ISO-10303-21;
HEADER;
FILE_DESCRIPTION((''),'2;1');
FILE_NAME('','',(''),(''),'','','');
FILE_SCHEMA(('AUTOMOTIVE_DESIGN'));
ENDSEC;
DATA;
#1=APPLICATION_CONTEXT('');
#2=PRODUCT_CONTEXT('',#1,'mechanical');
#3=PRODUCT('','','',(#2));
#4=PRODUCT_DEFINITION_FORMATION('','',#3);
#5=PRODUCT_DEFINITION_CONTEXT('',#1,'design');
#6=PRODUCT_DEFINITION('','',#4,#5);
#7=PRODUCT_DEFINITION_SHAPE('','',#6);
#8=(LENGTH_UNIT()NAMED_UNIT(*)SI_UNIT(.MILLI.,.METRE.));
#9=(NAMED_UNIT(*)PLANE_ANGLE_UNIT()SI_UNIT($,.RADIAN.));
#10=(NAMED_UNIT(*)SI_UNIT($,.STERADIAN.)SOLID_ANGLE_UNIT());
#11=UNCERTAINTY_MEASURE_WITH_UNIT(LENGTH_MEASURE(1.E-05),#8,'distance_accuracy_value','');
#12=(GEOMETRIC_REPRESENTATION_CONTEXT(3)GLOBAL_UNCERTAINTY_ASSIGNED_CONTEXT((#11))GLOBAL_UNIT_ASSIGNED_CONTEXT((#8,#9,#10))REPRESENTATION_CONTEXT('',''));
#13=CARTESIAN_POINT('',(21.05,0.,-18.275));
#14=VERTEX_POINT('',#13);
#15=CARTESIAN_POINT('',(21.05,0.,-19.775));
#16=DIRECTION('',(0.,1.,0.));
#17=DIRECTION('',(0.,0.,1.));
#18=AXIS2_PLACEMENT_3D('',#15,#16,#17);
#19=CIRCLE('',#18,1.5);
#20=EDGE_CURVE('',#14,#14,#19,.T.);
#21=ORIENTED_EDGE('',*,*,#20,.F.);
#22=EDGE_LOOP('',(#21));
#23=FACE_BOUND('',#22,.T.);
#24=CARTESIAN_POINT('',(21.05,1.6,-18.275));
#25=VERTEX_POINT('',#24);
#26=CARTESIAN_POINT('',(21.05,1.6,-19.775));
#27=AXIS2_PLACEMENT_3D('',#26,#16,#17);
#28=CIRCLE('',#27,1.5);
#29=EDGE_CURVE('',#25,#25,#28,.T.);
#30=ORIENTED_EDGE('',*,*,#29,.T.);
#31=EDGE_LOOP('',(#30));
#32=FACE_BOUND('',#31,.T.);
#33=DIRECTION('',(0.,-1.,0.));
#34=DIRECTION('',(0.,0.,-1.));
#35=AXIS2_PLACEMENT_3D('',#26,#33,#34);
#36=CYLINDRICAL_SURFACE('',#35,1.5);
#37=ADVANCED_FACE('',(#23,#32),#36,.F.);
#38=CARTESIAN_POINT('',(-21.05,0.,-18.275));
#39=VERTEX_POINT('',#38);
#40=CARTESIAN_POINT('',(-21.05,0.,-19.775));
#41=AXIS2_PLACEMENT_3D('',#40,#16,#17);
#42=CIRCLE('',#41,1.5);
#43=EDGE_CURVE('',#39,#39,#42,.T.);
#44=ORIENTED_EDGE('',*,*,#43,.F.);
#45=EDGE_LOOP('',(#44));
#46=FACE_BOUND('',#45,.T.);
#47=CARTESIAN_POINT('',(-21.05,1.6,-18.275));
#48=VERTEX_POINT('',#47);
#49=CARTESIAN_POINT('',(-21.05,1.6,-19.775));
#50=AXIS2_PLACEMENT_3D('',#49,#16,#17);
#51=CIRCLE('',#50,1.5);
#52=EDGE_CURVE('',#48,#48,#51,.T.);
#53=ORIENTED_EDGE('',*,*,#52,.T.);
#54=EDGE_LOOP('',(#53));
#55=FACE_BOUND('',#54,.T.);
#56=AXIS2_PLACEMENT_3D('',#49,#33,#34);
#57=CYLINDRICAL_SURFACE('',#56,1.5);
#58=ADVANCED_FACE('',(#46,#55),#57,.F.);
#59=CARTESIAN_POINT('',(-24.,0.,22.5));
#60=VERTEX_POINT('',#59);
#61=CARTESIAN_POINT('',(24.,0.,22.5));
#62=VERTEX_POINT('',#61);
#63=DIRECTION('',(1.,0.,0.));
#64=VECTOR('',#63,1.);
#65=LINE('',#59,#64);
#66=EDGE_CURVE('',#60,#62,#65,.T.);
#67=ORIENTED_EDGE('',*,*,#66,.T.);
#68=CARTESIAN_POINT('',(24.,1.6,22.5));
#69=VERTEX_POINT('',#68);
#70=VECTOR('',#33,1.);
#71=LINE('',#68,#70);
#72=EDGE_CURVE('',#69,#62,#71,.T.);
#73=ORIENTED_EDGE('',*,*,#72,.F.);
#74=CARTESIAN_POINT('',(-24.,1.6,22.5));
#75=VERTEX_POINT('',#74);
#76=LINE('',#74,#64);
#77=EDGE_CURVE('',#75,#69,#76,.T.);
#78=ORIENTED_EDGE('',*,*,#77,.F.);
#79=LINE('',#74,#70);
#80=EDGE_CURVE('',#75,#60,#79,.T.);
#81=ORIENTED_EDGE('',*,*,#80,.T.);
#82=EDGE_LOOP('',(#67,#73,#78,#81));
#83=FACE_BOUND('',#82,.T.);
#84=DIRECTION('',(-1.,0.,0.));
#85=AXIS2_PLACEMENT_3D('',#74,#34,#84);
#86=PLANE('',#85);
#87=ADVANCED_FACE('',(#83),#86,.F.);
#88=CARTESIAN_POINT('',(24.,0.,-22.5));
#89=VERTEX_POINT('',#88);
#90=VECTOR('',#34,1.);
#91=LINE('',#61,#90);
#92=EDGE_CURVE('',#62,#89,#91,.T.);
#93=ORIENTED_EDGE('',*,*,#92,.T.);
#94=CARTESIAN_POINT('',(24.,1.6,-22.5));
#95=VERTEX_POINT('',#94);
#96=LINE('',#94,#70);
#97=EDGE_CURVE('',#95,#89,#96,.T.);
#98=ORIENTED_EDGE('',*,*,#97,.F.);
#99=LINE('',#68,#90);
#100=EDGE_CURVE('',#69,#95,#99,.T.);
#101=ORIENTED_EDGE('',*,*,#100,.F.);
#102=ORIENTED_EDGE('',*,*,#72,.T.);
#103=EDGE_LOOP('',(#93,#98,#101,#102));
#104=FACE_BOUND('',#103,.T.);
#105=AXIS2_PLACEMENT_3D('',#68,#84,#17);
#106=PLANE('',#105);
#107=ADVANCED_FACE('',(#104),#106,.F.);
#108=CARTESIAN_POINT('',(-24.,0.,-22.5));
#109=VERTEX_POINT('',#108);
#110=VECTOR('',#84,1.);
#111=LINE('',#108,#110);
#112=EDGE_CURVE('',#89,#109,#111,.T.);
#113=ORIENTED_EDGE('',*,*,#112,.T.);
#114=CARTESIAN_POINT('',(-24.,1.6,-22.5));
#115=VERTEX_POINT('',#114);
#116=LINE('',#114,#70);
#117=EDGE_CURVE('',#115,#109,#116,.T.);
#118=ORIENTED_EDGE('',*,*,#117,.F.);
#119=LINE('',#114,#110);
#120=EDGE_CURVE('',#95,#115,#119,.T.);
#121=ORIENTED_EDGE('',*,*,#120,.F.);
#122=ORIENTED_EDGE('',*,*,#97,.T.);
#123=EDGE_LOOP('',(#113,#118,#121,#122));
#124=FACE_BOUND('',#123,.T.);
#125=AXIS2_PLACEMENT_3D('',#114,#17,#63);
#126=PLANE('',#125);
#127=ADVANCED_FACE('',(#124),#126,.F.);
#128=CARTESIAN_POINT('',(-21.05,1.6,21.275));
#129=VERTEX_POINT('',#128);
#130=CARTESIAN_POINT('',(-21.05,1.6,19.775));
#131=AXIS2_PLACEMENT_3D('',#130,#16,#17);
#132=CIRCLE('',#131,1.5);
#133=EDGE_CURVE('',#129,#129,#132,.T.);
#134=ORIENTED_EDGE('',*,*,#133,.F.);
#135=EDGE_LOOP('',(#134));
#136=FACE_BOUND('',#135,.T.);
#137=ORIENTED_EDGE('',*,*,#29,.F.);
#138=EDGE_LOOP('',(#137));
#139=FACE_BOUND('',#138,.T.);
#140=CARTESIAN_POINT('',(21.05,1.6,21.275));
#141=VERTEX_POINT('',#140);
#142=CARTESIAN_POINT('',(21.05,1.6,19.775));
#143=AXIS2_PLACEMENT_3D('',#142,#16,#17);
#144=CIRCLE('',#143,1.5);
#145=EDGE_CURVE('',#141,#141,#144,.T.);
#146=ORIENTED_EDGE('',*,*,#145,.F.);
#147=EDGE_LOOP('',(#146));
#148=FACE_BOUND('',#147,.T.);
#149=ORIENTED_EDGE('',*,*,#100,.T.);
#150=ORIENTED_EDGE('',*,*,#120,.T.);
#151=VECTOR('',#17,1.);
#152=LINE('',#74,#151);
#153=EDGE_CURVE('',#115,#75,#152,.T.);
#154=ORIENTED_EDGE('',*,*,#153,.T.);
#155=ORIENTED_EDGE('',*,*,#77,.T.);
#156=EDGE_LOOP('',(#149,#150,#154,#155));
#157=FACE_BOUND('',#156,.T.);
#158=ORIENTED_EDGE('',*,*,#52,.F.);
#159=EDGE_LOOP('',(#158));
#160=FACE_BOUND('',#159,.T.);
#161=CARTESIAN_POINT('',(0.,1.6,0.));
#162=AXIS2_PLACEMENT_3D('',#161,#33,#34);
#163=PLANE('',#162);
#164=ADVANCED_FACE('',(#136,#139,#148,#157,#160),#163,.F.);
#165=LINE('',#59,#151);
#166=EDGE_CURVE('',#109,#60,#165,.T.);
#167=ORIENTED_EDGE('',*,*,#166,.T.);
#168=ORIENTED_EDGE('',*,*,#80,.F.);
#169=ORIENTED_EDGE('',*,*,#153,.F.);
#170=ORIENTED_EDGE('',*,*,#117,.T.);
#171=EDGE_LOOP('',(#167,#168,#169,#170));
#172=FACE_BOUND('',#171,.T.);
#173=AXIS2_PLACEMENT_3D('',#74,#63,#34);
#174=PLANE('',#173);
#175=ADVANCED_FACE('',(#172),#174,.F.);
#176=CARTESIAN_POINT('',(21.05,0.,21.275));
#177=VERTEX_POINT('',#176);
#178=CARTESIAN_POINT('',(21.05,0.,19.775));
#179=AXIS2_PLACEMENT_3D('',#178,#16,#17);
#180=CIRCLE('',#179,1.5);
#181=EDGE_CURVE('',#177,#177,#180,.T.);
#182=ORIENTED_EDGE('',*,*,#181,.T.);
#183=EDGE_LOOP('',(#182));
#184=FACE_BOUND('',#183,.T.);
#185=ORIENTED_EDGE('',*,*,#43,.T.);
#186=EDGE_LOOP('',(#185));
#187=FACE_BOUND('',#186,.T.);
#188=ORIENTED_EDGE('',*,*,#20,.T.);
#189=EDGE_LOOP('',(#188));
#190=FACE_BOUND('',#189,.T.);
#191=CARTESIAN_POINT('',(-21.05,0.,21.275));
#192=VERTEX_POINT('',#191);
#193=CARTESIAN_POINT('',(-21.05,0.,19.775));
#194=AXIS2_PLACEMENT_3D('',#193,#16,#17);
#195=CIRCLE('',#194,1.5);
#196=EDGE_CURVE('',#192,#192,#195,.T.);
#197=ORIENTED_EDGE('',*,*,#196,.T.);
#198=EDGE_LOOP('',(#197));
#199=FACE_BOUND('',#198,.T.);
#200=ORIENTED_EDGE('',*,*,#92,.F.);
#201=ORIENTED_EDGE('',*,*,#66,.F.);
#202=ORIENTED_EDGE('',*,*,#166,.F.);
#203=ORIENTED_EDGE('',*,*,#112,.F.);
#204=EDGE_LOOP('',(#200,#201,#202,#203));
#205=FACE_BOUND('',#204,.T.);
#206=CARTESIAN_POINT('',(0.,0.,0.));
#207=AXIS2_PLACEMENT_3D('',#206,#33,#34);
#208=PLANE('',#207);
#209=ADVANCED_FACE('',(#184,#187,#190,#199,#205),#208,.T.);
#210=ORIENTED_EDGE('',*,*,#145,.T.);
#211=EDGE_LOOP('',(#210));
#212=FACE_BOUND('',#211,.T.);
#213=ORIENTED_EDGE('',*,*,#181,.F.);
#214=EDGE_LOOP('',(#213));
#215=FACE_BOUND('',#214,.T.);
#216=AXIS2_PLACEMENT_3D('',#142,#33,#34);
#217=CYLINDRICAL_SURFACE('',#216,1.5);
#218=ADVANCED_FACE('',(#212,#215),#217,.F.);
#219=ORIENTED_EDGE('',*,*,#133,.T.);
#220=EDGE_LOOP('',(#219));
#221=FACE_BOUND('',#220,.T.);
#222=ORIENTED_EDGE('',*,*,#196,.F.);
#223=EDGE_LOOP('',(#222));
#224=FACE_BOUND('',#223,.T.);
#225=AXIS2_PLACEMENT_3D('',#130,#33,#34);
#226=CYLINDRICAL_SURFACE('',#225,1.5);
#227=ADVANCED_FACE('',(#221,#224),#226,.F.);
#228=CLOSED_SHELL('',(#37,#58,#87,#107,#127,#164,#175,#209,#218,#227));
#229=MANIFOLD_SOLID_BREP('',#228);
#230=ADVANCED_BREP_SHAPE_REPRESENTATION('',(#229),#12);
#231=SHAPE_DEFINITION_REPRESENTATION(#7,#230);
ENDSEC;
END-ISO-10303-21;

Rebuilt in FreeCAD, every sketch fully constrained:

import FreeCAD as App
import Part
import Sketcher

V = App.Vector
Q = App.Units.Quantity


def add_polygon(sketch, points):
    """Adds a closed chain of lines whose ends are joined by coincident constraints."""
    first, n = sketch.GeometryCount, len(points)
    for a, b in zip(points, points[1:] + points[:1]):
        sketch.addGeometry(Part.LineSegment(App.Vector(*a, 0), App.Vector(*b, 0)), False)
    for i in range(n):
        sketch.addConstraint(Sketcher.Constraint("Coincident", first + i, 2, first + (i + 1) % n, 1))

doc = App.newDocument("Part")
body = doc.addObject("PartDesign::Body", "Body")

sketch1 = body.newObject("Sketcher::SketchObject", "Sketch")
sketch1.AttachmentSupport = (doc.getObject("XZ_Plane"), [""])
sketch1.MapMode = "FlatFace"
add_polygon(sketch1, [(-24, -22.5), (-24, 22.5), (24, 22.5), (24, -22.5)])
sketch1.addGeometry(Part.Circle(V(-21.1, 19.8, 0), V(0, 0, 1), 1.5), False)
sketch1.addGeometry(Part.Circle(V(21.1, 19.8, 0), V(0, 0, 1), 1.5), False)
sketch1.addGeometry(Part.Circle(V(-21.1, -19.8, 0), V(0, 0, 1), 1.5), False)
sketch1.addGeometry(Part.Circle(V(21.1, -19.8, 0), V(0, 0, 1), 1.5), False)
sketch1.addConstraint([
    Sketcher.Constraint("Vertical", 0),
    Sketcher.Constraint("Horizontal", 1),
    Sketcher.Constraint("Vertical", 2),
    Sketcher.Constraint("Horizontal", 3),
    Sketcher.Constraint("Equal", 4, 5),
    Sketcher.Constraint("Equal", 5, 6),
    Sketcher.Constraint("Equal", 6, 7),
    Sketcher.Constraint("Symmetric", 5, 3, 6, 3, -1, 1),
    Sketcher.Constraint("Symmetric", 4, 3, 7, 3, -1, 1),
    Sketcher.Constraint("Symmetric", 0, 2, 2, 2, -1, 1),
    Sketcher.Constraint("Symmetric", 4, 3, 5, 3, -2),
    Sketcher.Constraint("Diameter", 4, Q("3 mm")),
    Sketcher.Constraint("DistanceX", 1, 1, 1, 2, Q("48 mm")),
    Sketcher.Constraint("DistanceY", 0, 1, 0, 2, Q("45 mm")),
    Sketcher.Constraint("DistanceX", 4, 3, 5, 3, Q("42.1 mm")),
    Sketcher.Constraint("DistanceY", 6, 3, 4, 3, Q("39.55 mm")),
])
pad1 = body.newObject("PartDesign::Pad", "Pad")
pad1.Profile = sketch1
pad1.Length = 1.6
pad1.Reversed = True

doc.recompute()
